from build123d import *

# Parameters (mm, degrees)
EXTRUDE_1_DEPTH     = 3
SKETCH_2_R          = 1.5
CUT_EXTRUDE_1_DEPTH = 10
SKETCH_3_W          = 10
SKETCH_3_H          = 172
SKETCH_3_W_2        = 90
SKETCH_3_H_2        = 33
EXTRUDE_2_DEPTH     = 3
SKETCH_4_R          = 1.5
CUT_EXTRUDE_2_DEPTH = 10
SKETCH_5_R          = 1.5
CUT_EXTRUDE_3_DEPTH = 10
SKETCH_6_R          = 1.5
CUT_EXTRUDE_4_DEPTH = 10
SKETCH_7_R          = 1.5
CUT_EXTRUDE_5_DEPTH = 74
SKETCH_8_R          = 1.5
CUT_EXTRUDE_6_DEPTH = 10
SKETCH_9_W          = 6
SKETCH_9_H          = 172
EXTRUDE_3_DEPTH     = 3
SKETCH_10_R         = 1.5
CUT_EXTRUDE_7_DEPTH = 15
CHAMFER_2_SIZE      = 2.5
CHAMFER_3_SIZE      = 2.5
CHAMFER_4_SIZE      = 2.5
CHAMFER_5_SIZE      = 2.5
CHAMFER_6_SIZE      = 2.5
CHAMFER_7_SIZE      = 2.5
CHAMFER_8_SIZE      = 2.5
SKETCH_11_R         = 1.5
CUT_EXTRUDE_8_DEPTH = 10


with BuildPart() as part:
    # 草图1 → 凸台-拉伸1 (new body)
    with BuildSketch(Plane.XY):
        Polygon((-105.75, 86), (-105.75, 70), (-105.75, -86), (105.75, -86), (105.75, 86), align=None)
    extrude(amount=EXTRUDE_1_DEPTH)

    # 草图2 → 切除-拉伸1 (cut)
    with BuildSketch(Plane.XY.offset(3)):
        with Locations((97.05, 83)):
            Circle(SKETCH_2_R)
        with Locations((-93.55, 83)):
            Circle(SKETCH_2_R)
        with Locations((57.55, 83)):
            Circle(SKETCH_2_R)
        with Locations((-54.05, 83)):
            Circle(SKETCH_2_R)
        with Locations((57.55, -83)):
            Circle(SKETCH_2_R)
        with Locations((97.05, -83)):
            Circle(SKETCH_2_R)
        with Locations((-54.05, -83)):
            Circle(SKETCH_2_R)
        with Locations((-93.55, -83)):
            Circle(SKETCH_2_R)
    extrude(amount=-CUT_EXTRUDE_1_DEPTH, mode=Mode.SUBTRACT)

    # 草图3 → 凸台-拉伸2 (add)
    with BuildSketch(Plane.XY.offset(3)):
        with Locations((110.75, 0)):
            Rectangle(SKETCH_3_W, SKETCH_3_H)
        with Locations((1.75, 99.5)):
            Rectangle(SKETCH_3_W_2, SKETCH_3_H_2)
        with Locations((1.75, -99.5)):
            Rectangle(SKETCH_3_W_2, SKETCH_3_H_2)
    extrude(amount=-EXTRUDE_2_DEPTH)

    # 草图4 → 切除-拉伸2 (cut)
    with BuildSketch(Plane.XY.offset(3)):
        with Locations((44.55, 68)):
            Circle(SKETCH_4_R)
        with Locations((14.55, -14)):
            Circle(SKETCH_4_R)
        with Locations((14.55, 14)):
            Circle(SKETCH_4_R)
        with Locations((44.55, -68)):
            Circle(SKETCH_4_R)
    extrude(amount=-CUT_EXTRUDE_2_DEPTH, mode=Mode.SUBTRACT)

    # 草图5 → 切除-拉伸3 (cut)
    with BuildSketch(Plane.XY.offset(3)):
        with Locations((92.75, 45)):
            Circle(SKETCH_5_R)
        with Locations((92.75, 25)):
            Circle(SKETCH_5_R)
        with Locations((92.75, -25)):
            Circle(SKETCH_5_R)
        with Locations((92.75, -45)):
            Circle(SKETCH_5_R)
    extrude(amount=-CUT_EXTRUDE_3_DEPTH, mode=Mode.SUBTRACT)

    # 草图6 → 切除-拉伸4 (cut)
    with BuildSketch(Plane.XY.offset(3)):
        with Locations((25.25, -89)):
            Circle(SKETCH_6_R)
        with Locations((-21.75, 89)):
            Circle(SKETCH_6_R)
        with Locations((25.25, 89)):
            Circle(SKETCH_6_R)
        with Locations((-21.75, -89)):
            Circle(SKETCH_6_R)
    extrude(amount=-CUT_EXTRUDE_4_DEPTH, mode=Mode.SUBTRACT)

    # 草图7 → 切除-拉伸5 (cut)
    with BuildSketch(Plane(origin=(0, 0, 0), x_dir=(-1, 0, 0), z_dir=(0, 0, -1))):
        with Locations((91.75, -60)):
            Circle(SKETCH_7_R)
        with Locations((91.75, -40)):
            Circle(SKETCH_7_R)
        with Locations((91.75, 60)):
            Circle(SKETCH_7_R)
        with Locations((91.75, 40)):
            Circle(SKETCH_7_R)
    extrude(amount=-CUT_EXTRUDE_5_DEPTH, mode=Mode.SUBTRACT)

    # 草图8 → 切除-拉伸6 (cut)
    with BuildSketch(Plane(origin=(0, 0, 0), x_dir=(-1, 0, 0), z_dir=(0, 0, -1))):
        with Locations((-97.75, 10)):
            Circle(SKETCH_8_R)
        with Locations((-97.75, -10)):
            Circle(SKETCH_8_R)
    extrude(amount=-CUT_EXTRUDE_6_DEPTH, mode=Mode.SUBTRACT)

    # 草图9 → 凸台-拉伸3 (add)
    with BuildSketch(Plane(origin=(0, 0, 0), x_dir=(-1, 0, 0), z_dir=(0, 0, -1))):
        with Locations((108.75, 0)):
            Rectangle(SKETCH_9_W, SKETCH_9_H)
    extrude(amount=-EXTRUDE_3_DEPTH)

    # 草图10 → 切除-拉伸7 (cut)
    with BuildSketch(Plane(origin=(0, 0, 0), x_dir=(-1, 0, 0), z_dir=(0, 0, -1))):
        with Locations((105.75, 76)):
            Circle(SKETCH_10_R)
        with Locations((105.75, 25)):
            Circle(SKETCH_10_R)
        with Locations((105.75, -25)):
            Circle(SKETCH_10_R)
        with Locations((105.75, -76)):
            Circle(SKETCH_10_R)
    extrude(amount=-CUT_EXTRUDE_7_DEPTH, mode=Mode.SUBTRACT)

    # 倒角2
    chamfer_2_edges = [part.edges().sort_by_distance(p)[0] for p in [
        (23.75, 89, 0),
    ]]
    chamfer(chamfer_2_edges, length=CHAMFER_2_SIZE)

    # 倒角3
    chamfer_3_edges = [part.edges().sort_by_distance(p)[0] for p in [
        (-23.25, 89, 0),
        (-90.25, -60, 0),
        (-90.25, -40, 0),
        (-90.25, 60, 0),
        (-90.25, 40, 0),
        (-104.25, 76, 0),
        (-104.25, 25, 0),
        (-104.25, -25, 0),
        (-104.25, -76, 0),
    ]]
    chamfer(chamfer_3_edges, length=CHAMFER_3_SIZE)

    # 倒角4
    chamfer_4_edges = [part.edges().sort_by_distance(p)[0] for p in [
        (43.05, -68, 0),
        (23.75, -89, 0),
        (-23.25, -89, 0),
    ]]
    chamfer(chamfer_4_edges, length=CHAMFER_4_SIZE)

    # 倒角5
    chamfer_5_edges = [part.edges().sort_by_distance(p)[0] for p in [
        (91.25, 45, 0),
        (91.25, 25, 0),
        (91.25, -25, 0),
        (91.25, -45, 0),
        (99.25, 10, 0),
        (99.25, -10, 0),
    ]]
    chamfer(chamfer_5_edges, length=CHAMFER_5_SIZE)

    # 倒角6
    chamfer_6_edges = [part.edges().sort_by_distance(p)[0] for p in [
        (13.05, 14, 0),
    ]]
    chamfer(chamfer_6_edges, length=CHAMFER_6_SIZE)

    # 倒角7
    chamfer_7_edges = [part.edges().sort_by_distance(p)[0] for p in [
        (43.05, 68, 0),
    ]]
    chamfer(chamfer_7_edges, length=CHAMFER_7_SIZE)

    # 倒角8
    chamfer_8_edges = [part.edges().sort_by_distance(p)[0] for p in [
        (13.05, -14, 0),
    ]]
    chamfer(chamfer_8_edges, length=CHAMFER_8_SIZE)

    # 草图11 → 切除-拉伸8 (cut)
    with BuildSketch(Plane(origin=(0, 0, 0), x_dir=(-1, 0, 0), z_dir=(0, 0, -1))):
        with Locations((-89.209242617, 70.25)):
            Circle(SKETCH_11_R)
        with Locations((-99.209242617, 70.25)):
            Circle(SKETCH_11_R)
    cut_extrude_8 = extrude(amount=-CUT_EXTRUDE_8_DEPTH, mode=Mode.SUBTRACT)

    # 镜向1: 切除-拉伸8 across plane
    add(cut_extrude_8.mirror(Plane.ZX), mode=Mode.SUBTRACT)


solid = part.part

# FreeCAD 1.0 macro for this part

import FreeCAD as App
import Part
import Sketcher


def edges_at(feature, points):
    """Names of the edges that pass closest to the given points."""
    edges = feature.Shape.Edges
    near = lambda p: min(range(len(edges)), key=lambda i: edges[i].distToShape(Part.Vertex(*p))[0])
    return sorted({f"Edge{near(p) + 1}" for p in points})

doc = App.newDocument("Part")
body = doc.addObject("PartDesign::Body", "Body")

# Sketch on XY plane
sketch1 = doc.addObject("Sketcher::SketchObject", "Sketch")
body.addObject(sketch1)
sketch1.AttachmentSupport = (doc.XY_Plane, [""])
sketch1.MapMode = "FlatFace"
sketch1.addGeometry([
    Part.LineSegment(App.Vector(-106, 86, 0), App.Vector(-106, -86, 0)),
    Part.LineSegment(App.Vector(-106, -86, 0), App.Vector(106, -86, 0)),
    Part.LineSegment(App.Vector(106, -86, 0), App.Vector(106, 86, 0)),
    Part.LineSegment(App.Vector(106, 86, 0), App.Vector(-106, 86, 0)),
], False)
sketch1.addConstraint([
    Sketcher.Constraint("Coincident", 0, 2, 1, 1),
    Sketcher.Constraint("Coincident", 1, 2, 2, 1),
    Sketcher.Constraint("Coincident", 2, 2, 3, 1),
    Sketcher.Constraint("Coincident", 3, 2, 0, 1),
    Sketcher.Constraint("Vertical", 0),
    Sketcher.Constraint("Horizontal", 1),
    Sketcher.Constraint("Vertical", 2),
    Sketcher.Constraint("Horizontal", 3),
    Sketcher.Constraint("Symmetric", 0, 2, 2, 2, -1, 1),
    Sketcher.Constraint("DistanceY", 0, 2, 0, 1, 172.0),
    Sketcher.Constraint("DistanceX", 1, 1, 1, 2, 211.5),
])
pad1 = doc.addObject("PartDesign::Pad", "Pad")
body.addObject(pad1)
pad1.Profile = sketch1
pad1.Length = 3

# Sketch on XY plane
sketch2 = doc.addObject("Sketcher::SketchObject", "Sketch001")
body.addObject(sketch2)
sketch2.AttachmentSupport = (doc.XY_Plane, [""])
sketch2.MapMode = "FlatFace"
sketch2.AttachmentOffset = App.Placement(App.Vector(0, 0, 3), App.Rotation())
sketch2.addGeometry([
    Part.Circle(App.Vector(97, 83, 0), App.Vector(0, 0, 1), 1.5),  # 0
    Part.Circle(App.Vector(-93.5, 83, 0), App.Vector(0, 0, 1), 1.5),  # 1
    Part.Circle(App.Vector(57.5, 83, 0), App.Vector(0, 0, 1), 1.5),  # 2
    Part.Circle(App.Vector(-54, 83, 0), App.Vector(0, 0, 1), 1.5),  # 3
    Part.Circle(App.Vector(57.5, -83, 0), App.Vector(0, 0, 1), 1.5),  # 4
    Part.Circle(App.Vector(97, -83, 0), App.Vector(0, 0, 1), 1.5),  # 5
    Part.Circle(App.Vector(-54, -83, 0), App.Vector(0, 0, 1), 1.5),  # 6
    Part.Circle(App.Vector(-93.5, -83, 0), App.Vector(0, 0, 1), 1.5),  # 7
], False)
sketch2.addConstraint([
    Sketcher.Constraint("Equal", 0, 1),
    Sketcher.Constraint("Equal", 1, 2),
    Sketcher.Constraint("Equal", 2, 3),
    Sketcher.Constraint("Equal", 3, 4),
    Sketcher.Constraint("Equal", 4, 5),
    Sketcher.Constraint("Equal", 5, 6),
    Sketcher.Constraint("Equal", 6, 7),
    Sketcher.Constraint("Symmetric", 2, 3, 4, 3, -1),
    Sketcher.Constraint("Symmetric", 0, 3, 5, 3, -1),
    Sketcher.Constraint("Symmetric", 3, 3, 6, 3, -1),
    Sketcher.Constraint("Symmetric", 1, 3, 7, 3, -1),
    Sketcher.Constraint("Horizontal", 0, 3, 1, 3),
    Sketcher.Constraint("Horizontal", 1, 3, 2, 3),
    Sketcher.Constraint("Horizontal", 2, 3, 3, 3),
    Sketcher.Constraint("Diameter", 0, 3.0),
    Sketcher.Constraint("DistanceY", -1, 1, 0, 3, 83.0),
    Sketcher.Constraint("DistanceX", 1, 3, 0, 3, 190.6),
    Sketcher.Constraint("DistanceX", 2, 3, 0, 3, 39.5),
    Sketcher.Constraint("DistanceX", 1, 3, 3, 3, 39.5),
    Sketcher.Constraint("DistanceX", -1, 1, 0, 3, 97.05),
])
pocket1 = doc.addObject("PartDesign::Pocket", "Pocket")
body.addObject(pocket1)
pocket1.Profile = sketch2
pocket1.Length = 10

# Sketch on XY plane
sketch3 = doc.addObject("Sketcher::SketchObject", "Sketch002")
body.addObject(sketch3)
sketch3.AttachmentSupport = (doc.XY_Plane, [""])
sketch3.MapMode = "FlatFace"
sketch3.AttachmentOffset = App.Placement(App.Vector(0, 0, 3), App.Rotation())
sketch3.addGeometry([
    Part.LineSegment(App.Vector(106, 86, 0), App.Vector(106, -86, 0)),  # 0
    Part.LineSegment(App.Vector(106, -86, 0), App.Vector(116, -86, 0)),  # 1
    Part.LineSegment(App.Vector(116, -86, 0), App.Vector(116, 86, 0)),  # 2
    Part.LineSegment(App.Vector(116, 86, 0), App.Vector(106, 86, 0)),  # 3
    Part.LineSegment(App.Vector(-43, 116, 0), App.Vector(-43, 83, 0)),  # 4
    Part.LineSegment(App.Vector(-43, 83, 0), App.Vector(47, 83, 0)),  # 5
    Part.LineSegment(App.Vector(47, 83, 0), App.Vector(47, 116, 0)),  # 6
    Part.LineSegment(App.Vector(47, 116, 0), App.Vector(-43, 116, 0)),  # 7
    Part.LineSegment(App.Vector(-43, -83, 0), App.Vector(-43, -116, 0)),  # 8
    Part.LineSegment(App.Vector(-43, -116, 0), App.Vector(47, -116, 0)),  # 9
    Part.LineSegment(App.Vector(47, -116, 0), App.Vector(47, -83, 0)),  # 10
    Part.LineSegment(App.Vector(47, -83, 0), App.Vector(-43, -83, 0)),  # 11
], False)
sketch3.addConstraint([
    Sketcher.Constraint("Coincident", 0, 2, 1, 1),
    Sketcher.Constraint("Coincident", 1, 2, 2, 1),
    Sketcher.Constraint("Coincident", 2, 2, 3, 1),
    Sketcher.Constraint("Coincident", 3, 2, 0, 1),
    Sketcher.Constraint("Coincident", 4, 2, 5, 1),
    Sketcher.Constraint("Coincident", 5, 2, 6, 1),
    Sketcher.Constraint("Coincident", 6, 2, 7, 1),
    Sketcher.Constraint("Coincident", 7, 2, 4, 1),
    Sketcher.Constraint("Coincident", 8, 2, 9, 1),
    Sketcher.Constraint("Coincident", 9, 2, 10, 1),
    Sketcher.Constraint("Coincident", 10, 2, 11, 1),
    Sketcher.Constraint("Coincident", 11, 2, 8, 1),
    Sketcher.Constraint("Vertical", 0),
    Sketcher.Constraint("Horizontal", 1),
    Sketcher.Constraint("Vertical", 2),
    Sketcher.Constraint("Horizontal", 3),
    Sketcher.Constraint("Vertical", 4),
    Sketcher.Constraint("Horizontal", 5),
    Sketcher.Constraint("Vertical", 6),
    Sketcher.Constraint("Horizontal", 7),
    Sketcher.Constraint("Vertical", 8),
    Sketcher.Constraint("Horizontal", 9),
    Sketcher.Constraint("Vertical", 10),
    Sketcher.Constraint("Horizontal", 11),
    Sketcher.Constraint("Symmetric", 7, 2, 8, 2, -1),
    Sketcher.Constraint("Symmetric", 5, 2, 10, 2, -1),
    Sketcher.Constraint("DistanceX", 1, 1, 1, 2, 10.0),
    Sketcher.Constraint("DistanceX", 5, 1, 5, 2, 90.0),
    Sketcher.Constraint("DistanceY", 0, 2, 0, 1, 172.0),
    Sketcher.Constraint("DistanceY", 4, 2, 4, 1, 33.0),
    Sketcher.Constraint("DistanceY", 0, 2, -1, 1, 86.0),
    Sketcher.Constraint("DistanceY", -1, 1, 4, 2, 83.0),
    Sketcher.Constraint("DistanceX", 4, 2, 3, 2, 149.0),
    Sketcher.Constraint("DistanceX", -1, 1, 0, 2, 105.75),
])
pad2 = doc.addObject("PartDesign::Pad", "Pad001")
body.addObject(pad2)
pad2.Profile = sketch3
pad2.Length = 3
pad2.Reversed = True

# Sketch on XY plane
sketch4 = doc.addObject("Sketcher::SketchObject", "Sketch003")
body.addObject(sketch4)
sketch4.AttachmentSupport = (doc.XY_Plane, [""])
sketch4.MapMode = "FlatFace"
sketch4.AttachmentOffset = App.Placement(App.Vector(0, 0, 3), App.Rotation())
sketch4.addGeometry([
    Part.Circle(App.Vector(44.5, 68, 0), App.Vector(0, 0, 1), 1.5),
    Part.Circle(App.Vector(14.6, -14, 0), App.Vector(0, 0, 1), 1.5),
    Part.Circle(App.Vector(14.6, 14, 0), App.Vector(0, 0, 1), 1.5),
    Part.Circle(App.Vector(44.5, -68, 0), App.Vector(0, 0, 1), 1.5),
], False)
sketch4.addConstraint([
    Sketcher.Constraint("Equal", 0, 1),
    Sketcher.Constraint("Equal", 1, 2),
    Sketcher.Constraint("Equal", 2, 3),
    Sketcher.Constraint("Symmetric", 1, 3, 2, 3, -1),
    Sketcher.Constraint("Symmetric", 0, 3, 3, 3, -1),
    Sketcher.Constraint("Diameter", 0, 3.0),
    Sketcher.Constraint("DistanceY", -1, 1, 0, 3, 68.0),
    Sketcher.Constraint("DistanceY", 1, 3, -1, 1, 14.0),
    Sketcher.Constraint("DistanceX", 1, 3, 0, 3, 30.0),
    Sketcher.Constraint("DistanceX", -1, 1, 0, 3, 44.55),
])
pocket2 = doc.addObject("PartDesign::Pocket", "Pocket001")
body.addObject(pocket2)
pocket2.Profile = sketch4
pocket2.Length = 10

# Sketch on XY plane
sketch5 = doc.addObject("Sketcher::SketchObject", "Sketch004")
body.addObject(sketch5)
sketch5.AttachmentSupport = (doc.XY_Plane, [""])
sketch5.MapMode = "FlatFace"
sketch5.AttachmentOffset = App.Placement(App.Vector(0, 0, 3), App.Rotation())
sketch5.addGeometry([
    Part.Circle(App.Vector(92.8, 45, 0), App.Vector(0, 0, 1), 1.5),
    Part.Circle(App.Vector(92.8, 25, 0), App.Vector(0, 0, 1), 1.5),
    Part.Circle(App.Vector(92.8, -25, 0), App.Vector(0, 0, 1), 1.5),
    Part.Circle(App.Vector(92.8, -45, 0), App.Vector(0, 0, 1), 1.5),
], False)
sketch5.addConstraint([
    Sketcher.Constraint("Equal", 0, 1),
    Sketcher.Constraint("Equal", 1, 2),
    Sketcher.Constraint("Equal", 2, 3),
    Sketcher.Constraint("Symmetric", 1, 3, 2, 3, -1),
    Sketcher.Constraint("Symmetric", 0, 3, 3, 3, -1),
    Sketcher.Constraint("Vertical", 0, 3, 1, 3),
    Sketcher.Constraint("Diameter", 0, 3.0),
    Sketcher.Constraint("DistanceY", -1, 1, 0, 3, 45.0),
    Sketcher.Constraint("DistanceY", -1, 1, 1, 3, 25.0),
    Sketcher.Constraint("DistanceX", -1, 1, 0, 3, 92.75),
])
pocket3 = doc.addObject("PartDesign::Pocket", "Pocket002")
body.addObject(pocket3)
pocket3.Profile = sketch5
pocket3.Length = 10

# Sketch on XY plane
sketch6 = doc.addObject("Sketcher::SketchObject", "Sketch005")
body.addObject(sketch6)
sketch6.AttachmentSupport = (doc.XY_Plane, [""])
sketch6.MapMode = "FlatFace"
sketch6.AttachmentOffset = App.Placement(App.Vector(0, 0, 3), App.Rotation())
sketch6.addGeometry([
    Part.Circle(App.Vector(25.2, -89, 0), App.Vector(0, 0, 1), 1.5),
    Part.Circle(App.Vector(-21.8, 89, 0), App.Vector(0, 0, 1), 1.5),
    Part.Circle(App.Vector(25.2, 89, 0), App.Vector(0, 0, 1), 1.5),
    Part.Circle(App.Vector(-21.8, -89, 0), App.Vector(0, 0, 1), 1.5),
], False)
sketch6.addConstraint([
    Sketcher.Constraint("Equal", 0, 1),
    Sketcher.Constraint("Equal", 1, 2),
    Sketcher.Constraint("Equal", 2, 3),
    Sketcher.Constraint("Symmetric", 0, 3, 2, 3, -1),
    Sketcher.Constraint("Symmetric", 1, 3, 3, 3, -1),
    Sketcher.Constraint("Horizontal", 1, 3, 2, 3),
    Sketcher.Constraint("Diameter", 0, 3.0),
    Sketcher.Constraint("DistanceY", 0, 3, -1, 1, 89.0),
    Sketcher.Constraint("DistanceX", 1, 3, 0, 3, 47.0),
    Sketcher.Constraint("DistanceX", -1, 1, 0, 3, 25.25),
])
pocket4 = doc.addObject("PartDesign::Pocket", "Pocket003")
body.addObject(pocket4)
pocket4.Profile = sketch6
pocket4.Length = 10

# Sketch on XY plane
sketch7 = doc.addObject("Sketcher::SketchObject", "Sketch006")
body.addObject(sketch7)
sketch7.AttachmentSupport = (doc.XY_Plane, [""])
sketch7.MapMode = "FlatFace"
sketch7.addGeometry([
    Part.Circle(App.Vector(-91.8, -60, 0), App.Vector(0, 0, 1), 1.5),
    Part.Circle(App.Vector(-91.8, -40, 0), App.Vector(0, 0, 1), 1.5),
    Part.Circle(App.Vector(-91.8, 60, 0), App.Vector(0, 0, 1), 1.5),
    Part.Circle(App.Vector(-91.8, 40, 0), App.Vector(0, 0, 1), 1.5),
], False)
sketch7.addConstraint([
    Sketcher.Constraint("Equal", 0, 1),
    Sketcher.Constraint("Equal", 1, 2),
    Sketcher.Constraint("Equal", 2, 3),
    Sketcher.Constraint("Symmetric", 0, 3, 2, 3, -1),
    Sketcher.Constraint("Symmetric", 1, 3, 3, 3, -1),
    Sketcher.Constraint("Vertical", 0, 3, 1, 3),
    Sketcher.Constraint("Diameter", 0, 3.0),
    Sketcher.Constraint("DistanceY", 0, 3, -1, 1, 60.0),
    Sketcher.Constraint("DistanceY", 1, 3, -1, 1, 40.0),
    Sketcher.Constraint("DistanceX", 0, 3, -1, 1, 91.75),
])
pocket5 = doc.addObject("PartDesign::Pocket", "Pocket004")
body.addObject(pocket5)
pocket5.Profile = sketch7
pocket5.Length = 74
pocket5.Reversed = True

# Sketch on XY plane
sketch8 = doc.addObject("Sketcher::SketchObject", "Sketch007")
body.addObject(sketch8)
sketch8.AttachmentSupport = (doc.XY_Plane, [""])
sketch8.MapMode = "FlatFace"
sketch8.addGeometry([
    Part.Circle(App.Vector(97.8, 10, 0), App.Vector(0, 0, 1), 1.5),
    Part.Circle(App.Vector(97.8, -10, 0), App.Vector(0, 0, 1), 1.5),
], False)
sketch8.addConstraint([
    Sketcher.Constraint("Equal", 0, 1),
    Sketcher.Constraint("Symmetric", 0, 3, 1, 3, -1),
    Sketcher.Constraint("Diameter", 0, 3.0),
    Sketcher.Constraint("DistanceY", -1, 1, 0, 3, 10.0),
    Sketcher.Constraint("DistanceX", -1, 1, 0, 3, 97.75),
])
pocket6 = doc.addObject("PartDesign::Pocket", "Pocket005")
body.addObject(pocket6)
pocket6.Profile = sketch8
pocket6.Length = 10
pocket6.Reversed = True

# Sketch on XY plane
sketch9 = doc.addObject("Sketcher::SketchObject", "Sketch008")
body.addObject(sketch9)
sketch9.AttachmentSupport = (doc.XY_Plane, [""])
sketch9.MapMode = "FlatFace"
sketch9.addGeometry([
    Part.LineSegment(App.Vector(-106, 86, 0), App.Vector(-106, -86, 0)),
    Part.LineSegment(App.Vector(-106, -86, 0), App.Vector(-112, -86, 0)),
    Part.LineSegment(App.Vector(-112, -86, 0), App.Vector(-112, 86, 0)),
    Part.LineSegment(App.Vector(-112, 86, 0), App.Vector(-106, 86, 0)),
], False)
sketch9.addConstraint([
    Sketcher.Constraint("Coincident", 0, 2, 1, 1),
    Sketcher.Constraint("Coincident", 1, 2, 2, 1),
    Sketcher.Constraint("Coincident", 2, 2, 3, 1),
    Sketcher.Constraint("Coincident", 3, 2, 0, 1),
    Sketcher.Constraint("Vertical", 0),
    Sketcher.Constraint("Horizontal", 1),
    Sketcher.Constraint("Vertical", 2),
    Sketcher.Constraint("Horizontal", 3),
    Sketcher.Constraint("DistanceX", 1, 2, 1, 1, 6.0),
    Sketcher.Constraint("DistanceY", 0, 2, 0, 1, 172.0),
    Sketcher.Constraint("DistanceY", 0, 2, -1, 1, 86.0),
    Sketcher.Constraint("DistanceX", 0, 2, -1, 1, 105.75),
])
pad3 = doc.addObject("PartDesign::Pad", "Pad002")
body.addObject(pad3)
pad3.Profile = sketch9
pad3.Length = 3

# Sketch on XY plane
sketch10 = doc.addObject("Sketcher::SketchObject", "Sketch009")
body.addObject(sketch10)
sketch10.AttachmentSupport = (doc.XY_Plane, [""])
sketch10.MapMode = "FlatFace"
sketch10.addGeometry([
    Part.Circle(App.Vector(-105.8, 76, 0), App.Vector(0, 0, 1), 1.5),
    Part.Circle(App.Vector(-105.8, 25, 0), App.Vector(0, 0, 1), 1.5),
    Part.Circle(App.Vector(-105.8, -25, 0), App.Vector(0, 0, 1), 1.5),
    Part.Circle(App.Vector(-105.8, -76, 0), App.Vector(0, 0, 1), 1.5),
], False)
sketch10.addConstraint([
    Sketcher.Constraint("Equal", 0, 1),
    Sketcher.Constraint("Equal", 1, 2),
    Sketcher.Constraint("Equal", 2, 3),
    Sketcher.Constraint("Symmetric", 1, 3, 2, 3, -1),
    Sketcher.Constraint("Symmetric", 0, 3, 3, 3, -1),
    Sketcher.Constraint("Vertical", 0, 3, 1, 3),
    Sketcher.Constraint("Diameter", 0, 3.0),
    Sketcher.Constraint("DistanceY", -1, 1, 0, 3, 76.0),
    Sketcher.Constraint("DistanceY", -1, 1, 1, 3, 25.0),
    Sketcher.Constraint("DistanceX", 0, 3, -1, 1, 105.75),
])
pocket7 = doc.addObject("PartDesign::Pocket", "Pocket006")
body.addObject(pocket7)
pocket7.Profile = sketch10
pocket7.Length = 15
pocket7.Reversed = True
doc.recompute()

chamfer = doc.addObject("PartDesign::Chamfer", "Chamfer")
body.addObject(chamfer)
chamfer.Base = (pocket7, edges_at(pocket7, [(23.75, 89, 0)]))
chamfer.Size = 2.5
doc.recompute()

chamfer2 = doc.addObject("PartDesign::Chamfer", "Chamfer001")
body.addObject(chamfer2)
chamfer2.Base = (chamfer, edges_at(chamfer, [
    (-23.25, 89, 0),
    (-90.25, -60, 0),
    (-90.25, -40, 0),
    (-90.25, 60, 0),
    (-90.25, 40, 0),
    (-104.25, 76, 0),
    (-104.25, 25, 0),
    (-104.25, -25, 0),
    (-104.25, -76, 0),
]))
chamfer2.Size = 2.5
doc.recompute()

chamfer3 = doc.addObject("PartDesign::Chamfer", "Chamfer002")
body.addObject(chamfer3)
chamfer3.Base = (chamfer2, edges_at(chamfer2, [(43.05, -68, 0), (23.75, -89, 0), (-23.25, -89, 0)]))
chamfer3.Size = 2.5
doc.recompute()

chamfer4 = doc.addObject("PartDesign::Chamfer", "Chamfer003")
body.addObject(chamfer4)
chamfer4.Base = (chamfer3, edges_at(chamfer3, [
    (91.25, 45, 0),
    (91.25, 25, 0),
    (91.25, -25, 0),
    (91.25, -45, 0),
    (99.25, 10, 0),
    (99.25, -10, 0),
]))
chamfer4.Size = 2.5
doc.recompute()

chamfer5 = doc.addObject("PartDesign::Chamfer", "Chamfer004")
body.addObject(chamfer5)
chamfer5.Base = (chamfer4, edges_at(chamfer4, [(13.05, 14, 0)]))
chamfer5.Size = 2.5
doc.recompute()

chamfer6 = doc.addObject("PartDesign::Chamfer", "Chamfer005")
body.addObject(chamfer6)
chamfer6.Base = (chamfer5, edges_at(chamfer5, [(43.05, 68, 0)]))
chamfer6.Size = 2.5
doc.recompute()

chamfer7 = doc.addObject("PartDesign::Chamfer", "Chamfer006")
body.addObject(chamfer7)
chamfer7.Base = (chamfer6, edges_at(chamfer6, [(13.05, -14, 0)]))
chamfer7.Size = 2.5

# Sketch on XY plane
sketch11 = doc.addObject("Sketcher::SketchObject", "Sketch010")
body.addObject(sketch11)
sketch11.AttachmentSupport = (doc.XY_Plane, [""])
sketch11.MapMode = "FlatFace"
sketch11.addGeometry([
    Part.Circle(App.Vector(89.2, 70.2, 0), App.Vector(0, 0, 1), 1.5),
    Part.Circle(App.Vector(99.2, 70.2, 0), App.Vector(0, 0, 1), 1.5),
], False)
sketch11.addConstraint([
    Sketcher.Constraint("Equal", 0, 1),
    Sketcher.Constraint("Horizontal", 0, 3, 1, 3),
    Sketcher.Constraint("Diameter", 0, 3.0),
    Sketcher.Constraint("DistanceX", 0, 3, 1, 3, 10.0),
    Sketcher.Constraint("DistanceY", -1, 1, 0, 3, 70.25),
    Sketcher.Constraint("DistanceX", -1, 1, 0, 3, 89.209243),
])
pocket8 = doc.addObject("PartDesign::Pocket", "Pocket007")
body.addObject(pocket8)
pocket8.Profile = sketch11
pocket8.Length = 10
pocket8.Reversed = True
doc.recompute()

mirrored = doc.addObject("PartDesign::Mirrored", "Mirrored")
body.addObject(mirrored)
mirrored.Originals = [pocket8]
mirrored.MirrorPlane = (doc.XZ_Plane, [""])
body.Tip = mirrored

doc.recompute()
